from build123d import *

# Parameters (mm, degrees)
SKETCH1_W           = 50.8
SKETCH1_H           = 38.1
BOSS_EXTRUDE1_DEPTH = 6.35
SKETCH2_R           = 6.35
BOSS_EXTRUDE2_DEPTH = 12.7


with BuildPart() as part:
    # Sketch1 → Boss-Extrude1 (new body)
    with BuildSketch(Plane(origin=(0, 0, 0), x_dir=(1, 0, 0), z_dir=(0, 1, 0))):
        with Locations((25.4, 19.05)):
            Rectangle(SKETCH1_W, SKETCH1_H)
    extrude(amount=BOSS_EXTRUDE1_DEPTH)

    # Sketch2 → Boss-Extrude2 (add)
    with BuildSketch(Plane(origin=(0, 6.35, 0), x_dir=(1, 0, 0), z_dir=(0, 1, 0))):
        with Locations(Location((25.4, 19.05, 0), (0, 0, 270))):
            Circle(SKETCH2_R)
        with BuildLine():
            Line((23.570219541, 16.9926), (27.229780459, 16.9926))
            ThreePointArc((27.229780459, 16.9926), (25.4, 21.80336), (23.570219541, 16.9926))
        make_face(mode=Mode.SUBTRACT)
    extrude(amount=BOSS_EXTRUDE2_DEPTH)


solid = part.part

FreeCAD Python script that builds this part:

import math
import FreeCAD as App
import Part
import Sketcher
Q = App.Units.Quantity


def add_polygon(sketch, points):
    """Adds a closed chain of lines whose ends are joined by coincident constraints."""
    first, n = sketch.GeometryCount, len(points)
    for a, b in zip(points, points[1:] + points[:1]):
        sketch.addGeometry(Part.LineSegment(App.Vector(*a, 0), App.Vector(*b, 0)), False)
    for i in range(n):
        sketch.addConstraint(Sketcher.Constraint("Coincident", first + i, 2, first + (i + 1) % n, 1))

doc = App.newDocument("Part")
body = doc.addObject("PartDesign::Body", "Body")

# Sketch on XZ plane
sketch1 = body.newObject("Sketcher::SketchObject", "Sketch")
sketch1.AttachmentSupport = (doc.getObject("XZ_Plane"), [""])
sketch1.MapMode = "FlatFace"
add_polygon(sketch1, [(0, -38), (0, 0), (51, 0), (51, -38)])  # lines 0-3
sketch1.addConstraint([
    Sketcher.Constraint("Vertical", 0),
    Sketcher.Constraint("Horizontal", 1),
    Sketcher.Constraint("Vertical", 2),
    Sketcher.Constraint("Horizontal", 3),
    Sketcher.Constraint("Coincident", 0, 2, -1, 1),
    Sketcher.Constraint("DistanceX", 1, 1, 1, 2, Q("2 in")),
    Sketcher.Constraint("DistanceY", 0, 1, 0, 2, Q("1.5 in")),
])
pad1 = body.newObject("PartDesign::Pad", "Pad")
pad1.Profile = sketch1
pad1.Length = Q("0.25 in")
pad1.Reversed = True

# Sketch on XZ plane
sketch2 = body.newObject("Sketcher::SketchObject", "Sketch001")
sketch2.AttachmentSupport = (doc.getObject("XZ_Plane"), [""])
sketch2.MapMode = "FlatFace"
sketch2.AttachmentOffset = App.Placement(App.Vector(0, 0, -0.25 * 25.4), App.Rotation())
sketch2.addGeometry([
    Part.Circle(App.Vector(25.4, -19.1, 0), App.Vector(0, 0, 1), 6.3),
    Part.LineSegment(App.Vector(27.2, -17, 0), App.Vector(23.6, -17, 0)),
    Part.ArcOfCircle(Part.Circle(App.Vector(25.4, -19.1, 0), App.Vector(0, 0, 1), 2.8), math.radians(132), math.radians(408)),
], False)
sketch2.addConstraint([
    Sketcher.Constraint("Coincident", 1, 1, 2, 2),
    Sketcher.Constraint("Coincident", 2, 1, 1, 2),
    Sketcher.Constraint("Horizontal", 1),
    Sketcher.Constraint("Coincident", 2, 3, 0, 3),
    Sketcher.Constraint("Diameter", 0, Q("0.5 in")),
    Sketcher.Constraint("DistanceX", -1, 1, 0, 3, Q("1 in")),
    Sketcher.Constraint("Radius", 2, Q("0.1084 in")),
    Sketcher.Constraint("DistanceY", 0, 3, -1, 1, Q("0.75 in")),
    Sketcher.Constraint("DistanceY", 1, 1, -1, 1, Q("0.669 in")),
])
pad2 = body.newObject("PartDesign::Pad", "Pad001")
pad2.Profile = sketch2
pad2.Length = Q("0.5 in")
pad2.Reversed = True

doc.recompute()
